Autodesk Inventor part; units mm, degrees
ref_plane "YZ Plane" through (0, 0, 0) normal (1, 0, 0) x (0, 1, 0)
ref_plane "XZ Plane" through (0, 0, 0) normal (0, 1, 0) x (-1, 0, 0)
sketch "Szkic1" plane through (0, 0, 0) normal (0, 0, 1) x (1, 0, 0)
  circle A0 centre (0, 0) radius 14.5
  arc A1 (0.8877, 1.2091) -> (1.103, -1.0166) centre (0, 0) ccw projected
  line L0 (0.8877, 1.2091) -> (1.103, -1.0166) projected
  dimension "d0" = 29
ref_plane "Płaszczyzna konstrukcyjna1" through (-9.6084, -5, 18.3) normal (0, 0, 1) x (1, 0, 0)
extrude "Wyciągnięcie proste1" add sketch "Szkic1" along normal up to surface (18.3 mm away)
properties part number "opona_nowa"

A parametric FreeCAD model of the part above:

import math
import FreeCAD as App
import Part
import Sketcher

V = App.Vector

doc = App.newDocument("Part")
body = doc.addObject("PartDesign::Body", "Body")

# Sketch on XY plane
sketch1 = doc.addObject("Sketcher::SketchObject", "Sketch")
body.addObject(sketch1)
sketch1.AttachmentSupport = (doc.XY_Plane, [""])
sketch1.MapMode = "FlatFace"
sketch1.addGeometry([
    Part.Circle(V(0, 0, 0), V(0, 0, 1), 14.5),
    Part.ArcOfCircle(Part.Circle(V(0, 0, 0), V(0, 0, 1), 1.5), math.radians(54), math.radians(317)),
    Part.LineSegment(V(0.9, 1.2, 0), V(1.1, -1, 0)),
], False)
sketch1.addConstraint([
    Sketcher.Constraint("Coincident", 1, 1, 2, 1),
    Sketcher.Constraint("Coincident", 2, 2, 1, 2),
    Sketcher.Constraint("Coincident", 0, 3, -1, 1),
    Sketcher.Constraint("Coincident", 1, 3, -1, 1),
    Sketcher.Constraint("Diameter", 0, 29.0),
    Sketcher.Constraint("Radius", 1, 1.5),
    Sketcher.Constraint("Distance", 2, 2.236),
    Sketcher.Constraint("DistanceY", -1, 1, 1, 1, 1.209),
])
pad1 = doc.addObject("PartDesign::Pad", "Pad")
body.addObject(pad1)
pad1.Profile = sketch1
pad1.Length = 18.3

doc.recompute()
